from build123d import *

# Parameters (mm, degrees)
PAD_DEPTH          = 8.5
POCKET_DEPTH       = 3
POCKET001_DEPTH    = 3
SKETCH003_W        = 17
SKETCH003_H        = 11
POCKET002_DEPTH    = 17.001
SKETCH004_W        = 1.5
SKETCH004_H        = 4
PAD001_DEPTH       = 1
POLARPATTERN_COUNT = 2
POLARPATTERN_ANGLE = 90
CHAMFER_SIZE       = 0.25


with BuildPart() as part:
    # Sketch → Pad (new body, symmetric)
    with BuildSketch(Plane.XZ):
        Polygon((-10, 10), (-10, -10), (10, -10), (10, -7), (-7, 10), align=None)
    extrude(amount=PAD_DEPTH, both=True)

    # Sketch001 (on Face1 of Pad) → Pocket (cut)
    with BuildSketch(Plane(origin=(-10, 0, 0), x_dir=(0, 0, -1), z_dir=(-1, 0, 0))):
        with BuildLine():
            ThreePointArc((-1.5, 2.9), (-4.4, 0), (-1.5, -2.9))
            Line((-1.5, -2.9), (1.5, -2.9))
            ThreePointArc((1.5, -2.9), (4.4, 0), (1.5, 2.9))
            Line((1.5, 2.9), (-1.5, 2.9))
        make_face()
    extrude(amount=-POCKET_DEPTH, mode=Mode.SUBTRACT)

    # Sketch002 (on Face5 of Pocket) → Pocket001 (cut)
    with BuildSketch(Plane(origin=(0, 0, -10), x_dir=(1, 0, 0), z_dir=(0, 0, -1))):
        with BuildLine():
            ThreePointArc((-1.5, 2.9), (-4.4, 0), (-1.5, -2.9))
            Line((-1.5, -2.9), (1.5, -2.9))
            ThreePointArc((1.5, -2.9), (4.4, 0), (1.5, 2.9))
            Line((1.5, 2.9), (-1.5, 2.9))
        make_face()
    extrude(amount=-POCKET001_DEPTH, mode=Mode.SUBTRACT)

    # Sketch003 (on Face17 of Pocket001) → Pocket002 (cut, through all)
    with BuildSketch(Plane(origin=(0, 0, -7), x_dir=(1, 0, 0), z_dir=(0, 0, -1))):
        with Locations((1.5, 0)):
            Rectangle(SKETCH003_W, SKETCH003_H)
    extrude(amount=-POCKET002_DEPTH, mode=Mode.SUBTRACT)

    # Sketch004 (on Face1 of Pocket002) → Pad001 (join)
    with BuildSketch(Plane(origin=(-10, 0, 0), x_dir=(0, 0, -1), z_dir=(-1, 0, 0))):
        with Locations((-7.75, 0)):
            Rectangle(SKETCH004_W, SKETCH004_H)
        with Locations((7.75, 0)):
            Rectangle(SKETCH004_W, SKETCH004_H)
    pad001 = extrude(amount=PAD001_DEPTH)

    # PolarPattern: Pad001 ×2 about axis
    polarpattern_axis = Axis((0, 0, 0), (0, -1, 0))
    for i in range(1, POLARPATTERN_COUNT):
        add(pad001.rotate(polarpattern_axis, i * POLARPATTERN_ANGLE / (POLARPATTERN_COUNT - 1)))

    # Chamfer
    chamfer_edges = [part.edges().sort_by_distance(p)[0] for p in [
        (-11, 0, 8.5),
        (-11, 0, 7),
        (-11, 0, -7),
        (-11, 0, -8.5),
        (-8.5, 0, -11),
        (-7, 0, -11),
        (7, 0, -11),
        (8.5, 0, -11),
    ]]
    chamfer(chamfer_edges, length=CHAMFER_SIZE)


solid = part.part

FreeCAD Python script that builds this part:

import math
import FreeCAD as App
import Part
import Sketcher

V = App.Vector
Q = App.Units.Quantity


def edges_at(feature, points):
    """Names of the edges that pass closest to the given points."""
    edges = feature.Shape.Edges
    near = lambda p: min(range(len(edges)), key=lambda i: edges[i].distToShape(Part.Vertex(*p))[0])
    return sorted({f"Edge{near(p) + 1}" for p in points})


def add_polygon(sketch, points):
    """Adds a closed chain of lines whose ends are joined by coincident constraints."""
    first, n = sketch.GeometryCount, len(points)
    for a, b in zip(points, points[1:] + points[:1]):
        sketch.addGeometry(Part.LineSegment(App.Vector(*a, 0), App.Vector(*b, 0)), False)
    for i in range(n):
        sketch.addConstraint(Sketcher.Constraint("Coincident", first + i, 2, first + (i + 1) % n, 1))

doc = App.newDocument("Part")
body = doc.addObject("PartDesign::Body", "Body")

sketch1 = body.newObject("Sketcher::SketchObject", "Sketch")
sketch1.AttachmentSupport = (doc.getObject("XZ_Plane"), [""])
sketch1.MapMode = "FlatFace"
add_polygon(sketch1, [(-10, 10), (-10, -10), (10, -10), (10, -7), (-7, 10)])
sketch1.addConstraint(Sketcher.Constraint("Vertical", 0))
sketch1.addConstraint(Sketcher.Constraint("Horizontal", 1))
sketch1.addConstraint(Sketcher.Constraint("Vertical", 2))
sketch1.addConstraint(Sketcher.Constraint("Horizontal", 4))
sketch1.addConstraint(Sketcher.Constraint("Symmetric", 1, 2, 4, 2, -1, 1))
sketch1.addConstraint(Sketcher.Constraint("Equal", 1, 0))
sketch1.addConstraint(Sketcher.Constraint("Equal", 4, 2))
sketch1.addConstraint(Sketcher.Constraint("DistanceX", 1, 1, 1, 2, Q("20 mm")))
sketch1.addConstraint(Sketcher.Constraint("DistanceX", 4, 2, 4, 1, Q("3 mm")))
pad1 = body.newObject("PartDesign::Pad", "Pad")
pad1.Profile = sketch1
pad1.Length = 17
pad1.Midplane = True

sketch2 = body.newObject("Sketcher::SketchObject", "Sketch001")
sketch2.AttachmentSupport = (doc.getObject("YZ_Plane"), [""])
sketch2.MapMode = "FlatFace"
sketch2.AttachmentOffset = App.Placement(V(0, 0, -10), App.Rotation())
sketch2.addGeometry(Part.ArcOfCircle(Part.Circle(V(0, 1.5, 0), V(0, 0, 1), 2.9), math.radians(0), math.radians(180)), False)
sketch2.addGeometry(Part.LineSegment(V(2.9, 1.5, 0), V(2.9, -1.5, 0)), False)
sketch2.addGeometry(Part.ArcOfCircle(Part.Circle(V(0, -1.5, 0), V(0, 0, 1), 2.9), math.radians(180), math.radians(360)), False)
sketch2.addGeometry(Part.LineSegment(V(-2.9, -1.5, 0), V(-2.9, 1.5, 0)), False)
sketch2.addConstraint(Sketcher.Constraint("Tangent", 0, 1, 1, 1))
sketch2.addConstraint(Sketcher.Constraint("Tangent", 1, 2, 2, 2))
sketch2.addConstraint(Sketcher.Constraint("Tangent", 2, 1, 3, 1))
sketch2.addConstraint(Sketcher.Constraint("Tangent", 3, 2, 0, 2))
sketch2.addConstraint(Sketcher.Constraint("Vertical", 1))
sketch2.addConstraint(Sketcher.Constraint("Vertical", 3))
sketch2.addConstraint(Sketcher.Constraint("Symmetric", 0, 3, 2, 3, -1, 1))
sketch2.addConstraint(Sketcher.Constraint("Radius", 0, Q("2.9 mm")))
sketch2.addConstraint(Sketcher.Constraint("DistanceY", 1, 2, 1, 1, Q("3 mm")))
pocket1 = body.newObject("PartDesign::Pocket", "Pocket")
pocket1.Profile = sketch2
pocket1.Length = 3
pocket1.Reversed = True

sketch3 = body.newObject("Sketcher::SketchObject", "Sketch002")
sketch3.AttachmentSupport = (doc.getObject("XY_Plane"), [""])
sketch3.MapMode = "FlatFace"
sketch3.AttachmentOffset = App.Placement(V(0, 0, -10), App.Rotation())
sketch3.addGeometry(Part.ArcOfCircle(Part.Circle(V(-1.5, 0, 0), V(0, 0, 1), 2.9), math.radians(90), math.radians(270)), False)
sketch3.addGeometry(Part.LineSegment(V(-1.5, 2.9, 0), V(1.5, 2.9, 0)), False)
sketch3.addGeometry(Part.ArcOfCircle(Part.Circle(V(1.5, 0, 0), V(0, 0, 1), 2.9), math.radians(-90), math.radians(90)), False)
sketch3.addGeometry(Part.LineSegment(V(1.5, -2.9, 0), V(-1.5, -2.9, 0)), False)
sketch3.addConstraint(Sketcher.Constraint("Tangent", 0, 1, 1, 1))
sketch3.addConstraint(Sketcher.Constraint("Tangent", 1, 2, 2, 2))
sketch3.addConstraint(Sketcher.Constraint("Tangent", 2, 1, 3, 1))
sketch3.addConstraint(Sketcher.Constraint("Tangent", 3, 2, 0, 2))
sketch3.addConstraint(Sketcher.Constraint("Horizontal", 1))
sketch3.addConstraint(Sketcher.Constraint("Horizontal", 3))
sketch3.addConstraint(Sketcher.Constraint("Symmetric", 0, 3, 2, 3, -1, 1))
sketch3.addConstraint(Sketcher.Constraint("Radius", 0, Q("2.9 mm")))
sketch3.addConstraint(Sketcher.Constraint("DistanceX", 1, 1, 1, 2, Q("3 mm")))
pocket2 = body.newObject("PartDesign::Pocket", "Pocket001")
pocket2.Profile = sketch3
pocket2.Length = 3
pocket2.Reversed = True

sketch4 = body.newObject("Sketcher::SketchObject", "Sketch003")
sketch4.AttachmentSupport = (doc.getObject("XY_Plane"), [""])
sketch4.MapMode = "FlatFace"
sketch4.AttachmentOffset = App.Placement(V(0, 0, -7), App.Rotation())
add_polygon(sketch4, [(-7, -6), (-7, 6), (10, 6), (10, -6)])
sketch4.addConstraint(Sketcher.Constraint("Vertical", 0))
sketch4.addConstraint(Sketcher.Constraint("Horizontal", 1))
sketch4.addConstraint(Sketcher.Constraint("Vertical", 2))
sketch4.addConstraint(Sketcher.Constraint("Horizontal", 3))
sketch4.addConstraint(Sketcher.Constraint("DistanceX", 1, 1, 1, 2, Q("17 mm")))
sketch4.addConstraint(Sketcher.Constraint("DistanceY", 0, 1, 0, 2, Q("11 mm")))
sketch4.addConstraint(Sketcher.Constraint("DistanceX", 0, 2, -1, 1, Q("7 mm")))
sketch4.addConstraint(Sketcher.Constraint("DistanceY", -1, 1, 0, 2, Q("5.5 mm")))
pocket3 = body.newObject("PartDesign::Pocket", "Pocket002")
pocket3.Profile = sketch4
pocket3.Type = "ThroughAll"
pocket3.Reversed = True

sketch5 = body.newObject("Sketcher::SketchObject", "Sketch004")
sketch5.AttachmentSupport = (doc.getObject("YZ_Plane"), [""])
sketch5.MapMode = "FlatFace"
sketch5.AttachmentOffset = App.Placement(V(0, 0, -10), App.Rotation())
add_polygon(sketch5, [(-2, 8.5), (2, 8.5), (2, 7), (-2, 7)])
add_polygon(sketch5, [(-2, -7), (2, -7), (2, -8.5), (-2, -8.5)])
sketch5.addConstraint(Sketcher.Constraint("Horizontal", 0))
sketch5.addConstraint(Sketcher.Constraint("Vertical", 1))
sketch5.addConstraint(Sketcher.Constraint("Horizontal", 2))
sketch5.addConstraint(Sketcher.Constraint("Vertical", 3))
sketch5.addConstraint(Sketcher.Constraint("Horizontal", 4))
sketch5.addConstraint(Sketcher.Constraint("Vertical", 5))
sketch5.addConstraint(Sketcher.Constraint("Horizontal", 6))
sketch5.addConstraint(Sketcher.Constraint("Vertical", 7))
sketch5.addConstraint(Sketcher.Constraint("Symmetric", 2, 2, 4, 2, -1, 1))
sketch5.addConstraint(Sketcher.Constraint("Symmetric", 0, 2, 6, 2, -1, 1))
sketch5.addConstraint(Sketcher.Constraint("Vertical", 1, 2, 4, 2))
sketch5.addConstraint(Sketcher.Constraint("DistanceX", 0, 1, 0, 2, Q("4 mm")))
sketch5.addConstraint(Sketcher.Constraint("DistanceY", 1, 2, 1, 1, Q("1.5 mm")))
sketch5.addConstraint(Sketcher.Constraint("DistanceY", -1, 1, 1, 2, Q("7 mm")))
pad2 = body.newObject("PartDesign::Pad", "Pad001")
pad2.Profile = sketch5
pad2.Length = 1
pad2.Reversed = True
doc.recompute()

polarpattern = body.newObject("PartDesign::PolarPattern", "PolarPattern")
polarpattern.Originals = [pad2]
polarpattern.Axis = (doc.getObject("Y_Axis"), [""])
polarpattern.Angle = 90
polarpattern.Occurrences = 2
polarpattern.Reversed = True
body.Tip = polarpattern
doc.recompute()

chamfer = body.newObject("PartDesign::Chamfer", "Chamfer")
chamfer.Base = (polarpattern, edges_at(polarpattern, [
    (-11, 0, 8.5),
    (-11, 0, 7),
    (-11, 0, -7),
    (-11, 0, -8.5),
    (-8.5, 0, -11),
    (-7, 0, -11),
    (7, 0, -11),
    (8.5, 0, -11),
]))
chamfer.Size = 0.25

doc.recompute()
